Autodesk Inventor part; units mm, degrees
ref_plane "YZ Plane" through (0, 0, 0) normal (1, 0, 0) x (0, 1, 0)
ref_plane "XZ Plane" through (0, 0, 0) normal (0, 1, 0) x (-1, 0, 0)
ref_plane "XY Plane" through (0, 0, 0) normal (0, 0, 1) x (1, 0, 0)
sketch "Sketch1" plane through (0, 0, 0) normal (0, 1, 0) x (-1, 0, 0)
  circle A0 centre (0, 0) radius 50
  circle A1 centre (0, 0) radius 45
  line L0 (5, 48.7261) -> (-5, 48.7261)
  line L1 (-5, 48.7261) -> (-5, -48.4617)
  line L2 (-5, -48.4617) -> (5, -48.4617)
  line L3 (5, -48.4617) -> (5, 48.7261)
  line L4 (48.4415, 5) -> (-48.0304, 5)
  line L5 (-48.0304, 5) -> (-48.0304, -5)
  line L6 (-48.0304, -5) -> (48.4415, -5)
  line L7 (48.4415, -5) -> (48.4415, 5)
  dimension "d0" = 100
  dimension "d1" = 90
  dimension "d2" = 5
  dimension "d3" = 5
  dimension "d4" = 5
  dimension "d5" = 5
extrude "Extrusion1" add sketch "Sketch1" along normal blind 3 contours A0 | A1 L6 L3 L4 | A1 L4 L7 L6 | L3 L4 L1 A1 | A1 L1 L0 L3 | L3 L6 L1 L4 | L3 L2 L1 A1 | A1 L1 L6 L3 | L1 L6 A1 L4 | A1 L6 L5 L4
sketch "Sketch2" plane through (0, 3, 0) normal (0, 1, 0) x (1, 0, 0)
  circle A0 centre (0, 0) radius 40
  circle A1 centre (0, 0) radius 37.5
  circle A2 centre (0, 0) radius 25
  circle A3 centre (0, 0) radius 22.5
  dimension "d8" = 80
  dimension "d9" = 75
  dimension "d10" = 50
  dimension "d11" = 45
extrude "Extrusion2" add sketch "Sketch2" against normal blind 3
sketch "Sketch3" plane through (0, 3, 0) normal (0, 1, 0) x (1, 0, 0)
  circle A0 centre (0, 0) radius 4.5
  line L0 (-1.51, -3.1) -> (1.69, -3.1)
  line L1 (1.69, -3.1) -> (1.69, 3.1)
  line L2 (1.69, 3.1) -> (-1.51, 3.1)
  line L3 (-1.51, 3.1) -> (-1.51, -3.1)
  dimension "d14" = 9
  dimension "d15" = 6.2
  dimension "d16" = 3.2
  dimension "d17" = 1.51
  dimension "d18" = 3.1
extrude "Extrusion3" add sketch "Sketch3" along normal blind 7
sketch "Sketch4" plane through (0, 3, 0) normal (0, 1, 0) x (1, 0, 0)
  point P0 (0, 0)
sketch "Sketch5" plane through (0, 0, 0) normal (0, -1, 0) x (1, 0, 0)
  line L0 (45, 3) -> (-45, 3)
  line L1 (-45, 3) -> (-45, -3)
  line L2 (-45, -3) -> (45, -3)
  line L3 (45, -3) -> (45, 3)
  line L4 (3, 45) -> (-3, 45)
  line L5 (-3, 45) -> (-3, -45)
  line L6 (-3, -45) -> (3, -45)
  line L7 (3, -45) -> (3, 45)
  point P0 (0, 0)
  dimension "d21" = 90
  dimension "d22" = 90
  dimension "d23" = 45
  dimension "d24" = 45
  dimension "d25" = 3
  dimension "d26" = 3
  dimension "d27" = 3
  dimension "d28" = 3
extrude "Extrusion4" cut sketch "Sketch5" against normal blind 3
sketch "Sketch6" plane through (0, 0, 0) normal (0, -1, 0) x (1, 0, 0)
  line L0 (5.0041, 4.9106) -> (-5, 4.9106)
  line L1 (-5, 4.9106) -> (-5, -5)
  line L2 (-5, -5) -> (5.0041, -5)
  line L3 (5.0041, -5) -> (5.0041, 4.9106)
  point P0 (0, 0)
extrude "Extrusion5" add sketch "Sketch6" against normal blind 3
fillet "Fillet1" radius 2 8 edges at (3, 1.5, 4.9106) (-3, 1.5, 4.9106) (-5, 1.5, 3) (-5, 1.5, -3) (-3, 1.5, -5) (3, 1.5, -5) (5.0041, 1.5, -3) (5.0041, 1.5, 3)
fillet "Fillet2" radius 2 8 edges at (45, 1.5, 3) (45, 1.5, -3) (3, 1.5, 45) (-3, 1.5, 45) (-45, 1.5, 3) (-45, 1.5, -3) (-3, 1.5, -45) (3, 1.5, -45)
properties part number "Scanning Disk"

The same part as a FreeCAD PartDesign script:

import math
import FreeCAD as App
import Part
import Sketcher

V = App.Vector
Q = App.Units.Quantity


def edges_at(feature, points):
    """Names of the edges that pass closest to the given points."""
    edges = feature.Shape.Edges
    near = lambda p: min(range(len(edges)), key=lambda i: edges[i].distToShape(Part.Vertex(*p))[0])
    return sorted({f"Edge{near(p) + 1}" for p in points})

doc = App.newDocument("Part")
body = doc.addObject("PartDesign::Body", "Body")

sketch1 = body.newObject("Sketcher::SketchObject", "Sketch")
sketch1.AttachmentSupport = (doc.getObject("XZ_Plane"), [""])
sketch1.MapMode = "FlatFace"
sketch1.addGeometry([
    Part.Circle(V(0, 0, 0), V(0, 0, 1), 50),
    Part.ArcOfCircle(Part.Circle(V(0, 0, 0), V(0, 0, 1), 45), math.radians(96), math.radians(174)),
    Part.LineSegment(V(-45, 5, 0), V(-5, 5, 0)),
    Part.LineSegment(V(-5, 5, 0), V(-5, 45, 0)),
    Part.ArcOfCircle(Part.Circle(V(0, 0, 0), V(0, 0, 1), 45), math.radians(6), math.radians(84)),
    Part.LineSegment(V(5, 45, 0), V(5, 5, 0)),
    Part.LineSegment(V(5, 5, 0), V(45, 5, 0)),
    Part.ArcOfCircle(Part.Circle(V(0, 0, 0), V(0, 0, 1), 45), math.radians(-84), math.radians(-6)),
    Part.LineSegment(V(45, -5, 0), V(5, -5, 0)),
    Part.LineSegment(V(5, -5, 0), V(5, -45, 0)),
    Part.ArcOfCircle(Part.Circle(V(0, 0, 0), V(0, 0, 1), 45), math.radians(-174), math.radians(-96)),
    Part.LineSegment(V(-5, -45, 0), V(-5, -5, 0)),
    Part.LineSegment(V(-5, -5, 0), V(-45, -5, 0)),
], False)
sketch1.addConstraint([
    Sketcher.Constraint("Coincident", 1, 2, 2, 1),
    Sketcher.Constraint("Coincident", 2, 2, 3, 1),
    Sketcher.Constraint("Coincident", 3, 2, 1, 1),
    Sketcher.Constraint("Coincident", 4, 2, 5, 1),
    Sketcher.Constraint("Coincident", 5, 2, 6, 1),
    Sketcher.Constraint("Coincident", 6, 2, 4, 1),
    Sketcher.Constraint("Coincident", 7, 2, 8, 1),
    Sketcher.Constraint("Coincident", 8, 2, 9, 1),
    Sketcher.Constraint("Coincident", 9, 2, 7, 1),
    Sketcher.Constraint("Coincident", 10, 2, 11, 1),
    Sketcher.Constraint("Coincident", 11, 2, 12, 1),
    Sketcher.Constraint("Coincident", 12, 2, 10, 1),
    Sketcher.Constraint("Horizontal", 2),
    Sketcher.Constraint("Vertical", 3),
    Sketcher.Constraint("Vertical", 5),
    Sketcher.Constraint("Horizontal", 6),
    Sketcher.Constraint("Horizontal", 8),
    Sketcher.Constraint("Vertical", 9),
    Sketcher.Constraint("Vertical", 11),
    Sketcher.Constraint("Horizontal", 12),
    Sketcher.Constraint("Coincident", 0, 3, -1, 1),
    Sketcher.Constraint("Coincident", 1, 3, -1, 1),
    Sketcher.Constraint("Coincident", 4, 3, -1, 1),
    Sketcher.Constraint("Coincident", 7, 3, -1, 1),
    Sketcher.Constraint("Coincident", 10, 3, -1, 1),
    Sketcher.Constraint("Equal", 1, 4),
    Sketcher.Constraint("Equal", 4, 7),
    Sketcher.Constraint("Equal", 7, 10),
    Sketcher.Constraint("Symmetric", 2, 2, 8, 2, -1, 1),
    Sketcher.Constraint("Symmetric", 5, 2, 11, 2, -1, 1),
    Sketcher.Constraint("Symmetric", 2, 2, 5, 2, -2),
    Sketcher.Constraint("Equal", 12, 3),
    Sketcher.Constraint("Diameter", 0, Q("100 mm")),
    Sketcher.Constraint("Radius", 1, Q("45 mm")),
    Sketcher.Constraint("DistanceY", -1, 1, 1, 2, Q("5 mm")),
])
pad1 = body.newObject("PartDesign::Pad", "Pad")
pad1.Profile = sketch1
pad1.Length = 3
pad1.Reversed = True

sketch2 = body.newObject("Sketcher::SketchObject", "Sketch001")
sketch2.AttachmentSupport = (doc.getObject("XZ_Plane"), [""])
sketch2.MapMode = "FlatFace"
sketch2.AttachmentOffset = App.Placement(V(0, 0, -3), App.Rotation())
sketch2.addGeometry([
    Part.Circle(V(0, 0, 0), V(0, 0, 1), 40),
    Part.Circle(V(0, 0, 0), V(0, 0, 1), 38),
    Part.Circle(V(0, 0, 0), V(0, 0, 1), 25),
    Part.Circle(V(0, 0, 0), V(0, 0, 1), 22),
], False)
sketch2.addConstraint([
    Sketcher.Constraint("Coincident", 0, 3, -1, 1),
    Sketcher.Constraint("Coincident", 1, 3, -1, 1),
    Sketcher.Constraint("Coincident", 2, 3, -1, 1),
    Sketcher.Constraint("Coincident", 3, 3, -1, 1),
    Sketcher.Constraint("Diameter", 0, Q("80 mm")),
    Sketcher.Constraint("Diameter", 1, Q("75 mm")),
    Sketcher.Constraint("Diameter", 2, Q("50 mm")),
    Sketcher.Constraint("Diameter", 3, Q("45 mm")),
])
pad2 = body.newObject("PartDesign::Pad", "Pad001")
pad2.Profile = sketch2
pad2.Length = 3

sketch3 = body.newObject("Sketcher::SketchObject", "Sketch002")
sketch3.AttachmentSupport = (doc.getObject("XZ_Plane"), [""])
sketch3.MapMode = "FlatFace"
sketch3.AttachmentOffset = App.Placement(V(0, 0, -3), App.Rotation())
sketch3.addGeometry([
    Part.Circle(V(0, 0, 0), V(0, 0, 1), 4.5),
    Part.LineSegment(V(1.7, 3.1, 0), V(-1.5, 3.1, 0)),
    Part.LineSegment(V(-1.5, 3.1, 0), V(-1.5, -3.1, 0)),
    Part.LineSegment(V(-1.5, -3.1, 0), V(1.7, -3.1, 0)),
    Part.LineSegment(V(1.7, -3.1, 0), V(1.7, 3.1, 0)),
], False)
sketch3.addConstraint([
    Sketcher.Constraint("Coincident", 1, 2, 2, 1),
    Sketcher.Constraint("Coincident", 2, 2, 3, 1),
    Sketcher.Constraint("Coincident", 3, 2, 4, 1),
    Sketcher.Constraint("Coincident", 4, 2, 1, 1),
    Sketcher.Constraint("Horizontal", 1),
    Sketcher.Constraint("Vertical", 2),
    Sketcher.Constraint("Horizontal", 3),
    Sketcher.Constraint("Vertical", 4),
    Sketcher.Constraint("Coincident", 0, 3, -1, 1),
    Sketcher.Constraint("Diameter", 0, Q("9 mm")),
    Sketcher.Constraint("DistanceX", 1, 2, 1, 1, Q("3.2 mm")),
    Sketcher.Constraint("DistanceY", 2, 2, 2, 1, Q("6.2 mm")),
    Sketcher.Constraint("DistanceY", -1, 1, 1, 2, Q("3.1 mm")),
    Sketcher.Constraint("DistanceX", 1, 2, -1, 1, Q("1.51 mm")),
])
pad3 = body.newObject("PartDesign::Pad", "Pad002")
pad3.Profile = sketch3
pad3.Length = 7
pad3.Reversed = True

sketch4 = body.newObject("Sketcher::SketchObject", "Sketch003")
sketch4.AttachmentSupport = (doc.getObject("XZ_Plane"), [""])
sketch4.MapMode = "FlatFace"
sketch4.addGeometry([
    Part.LineSegment(V(45, -3, 0), V(45, 3, 0)),
    Part.LineSegment(V(45, 3, 0), V(3, 3, 0)),
    Part.LineSegment(V(3, 3, 0), V(3, 45, 0)),
    Part.LineSegment(V(3, 45, 0), V(-3, 45, 0)),
    Part.LineSegment(V(-3, 45, 0), V(-3, 3, 0)),
    Part.LineSegment(V(-3, 3, 0), V(-45, 3, 0)),
    Part.LineSegment(V(-45, 3, 0), V(-45, -3, 0)),
    Part.LineSegment(V(-45, -3, 0), V(-3, -3, 0)),
    Part.LineSegment(V(-3, -3, 0), V(-3, -45, 0)),
    Part.LineSegment(V(-3, -45, 0), V(3, -45, 0)),
    Part.LineSegment(V(3, -45, 0), V(3, -3, 0)),
    Part.LineSegment(V(3, -3, 0), V(45, -3, 0)),
], False)
sketch4.addConstraint([
    Sketcher.Constraint("Coincident", 0, 2, 1, 1),
    Sketcher.Constraint("Coincident", 1, 2, 2, 1),
    Sketcher.Constraint("Coincident", 2, 2, 3, 1),
    Sketcher.Constraint("Coincident", 3, 2, 4, 1),
    Sketcher.Constraint("Coincident", 4, 2, 5, 1),
    Sketcher.Constraint("Coincident", 5, 2, 6, 1),
    Sketcher.Constraint("Coincident", 6, 2, 7, 1),
    Sketcher.Constraint("Coincident", 7, 2, 8, 1),
    Sketcher.Constraint("Coincident", 8, 2, 9, 1),
    Sketcher.Constraint("Coincident", 9, 2, 10, 1),
    Sketcher.Constraint("Coincident", 10, 2, 11, 1),
    Sketcher.Constraint("Coincident", 11, 2, 0, 1),
    Sketcher.Constraint("Vertical", 0),
    Sketcher.Constraint("Horizontal", 1),
    Sketcher.Constraint("Vertical", 2),
    Sketcher.Constraint("Horizontal", 3),
    Sketcher.Constraint("Vertical", 4),
    Sketcher.Constraint("Horizontal", 5),
    Sketcher.Constraint("Vertical", 6),
    Sketcher.Constraint("Horizontal", 7),
    Sketcher.Constraint("Vertical", 8),
    Sketcher.Constraint("Horizontal", 9),
    Sketcher.Constraint("Vertical", 10),
    Sketcher.Constraint("Horizontal", 11),
    Sketcher.Constraint("Symmetric", 0, 2, 6, 2, -1, 1),
    Sketcher.Constraint("Symmetric", 2, 2, 8, 2, -1, 1),
    Sketcher.Constraint("Symmetric", 4, 2, 10, 2, -1, 1),
    Sketcher.Constraint("Symmetric", 1, 2, 4, 2, -2),
    Sketcher.Constraint("Equal", 9, 0),
    Sketcher.Constraint("Equal", 11, 2),
    Sketcher.Constraint("DistanceX", -1, 1, 0, 2, Q("45 mm")),
    Sketcher.Constraint("DistanceY", -1, 1, 0, 2, Q("3 mm")),
])
pocket1 = body.newObject("PartDesign::Pocket", "Pocket")
pocket1.Profile = sketch4
pocket1.Length = 3

sketch5 = body.newObject("Sketcher::SketchObject", "Sketch004")
sketch5.AttachmentSupport = (doc.getObject("XZ_Plane"), [""])
sketch5.MapMode = "FlatFace"
sketch5.addGeometry([
    Part.LineSegment(V(5, -5, 0), V(5, 5, 0)),
    Part.LineSegment(V(5, 5, 0), V(-5, 5, 0)),
    Part.LineSegment(V(-5, 5, 0), V(-5, -5, 0)),
    Part.LineSegment(V(-5, -5, 0), V(5, -5, 0)),
], False)
sketch5.addConstraint([
    Sketcher.Constraint("Coincident", 0, 2, 1, 1),
    Sketcher.Constraint("Coincident", 1, 2, 2, 1),
    Sketcher.Constraint("Coincident", 2, 2, 3, 1),
    Sketcher.Constraint("Coincident", 3, 2, 0, 1),
    Sketcher.Constraint("Vertical", 0),
    Sketcher.Constraint("Horizontal", 1),
    Sketcher.Constraint("Vertical", 2),
    Sketcher.Constraint("Horizontal", 3),
    Sketcher.Constraint("DistanceX", 1, 2, -1, 1, Q("5 mm")),
    Sketcher.Constraint("DistanceY", 2, 2, -1, 1, Q("5 mm")),
    Sketcher.Constraint("DistanceX", 1, 2, 1, 1, Q("10.004 mm")),
    Sketcher.Constraint("DistanceY", 0, 1, 0, 2, Q("9.9106 mm")),
])
pad4 = body.newObject("PartDesign::Pad", "Pad003")
pad4.Profile = sketch5
pad4.Length = 3
pad4.Reversed = True
doc.recompute()

fillet = body.newObject("PartDesign::Fillet", "Fillet")
fillet.Base = (pad4, edges_at(pad4, [
    (3, 1.5, 4.911),
    (-3, 1.5, 4.911),
    (-5, 1.5, 3),
    (-5, 1.5, -3),
    (-3, 1.5, -5),
    (3, 1.5, -5),
    (5.004, 1.5, -3),
    (5.004, 1.5, 3),
]))
fillet.Radius = 2
doc.recompute()

fillet2 = body.newObject("PartDesign::Fillet", "Fillet001")
fillet2.Base = (fillet, edges_at(fillet, [
    (45, 1.5, 3),
    (45, 1.5, -3),
    (3, 1.5, 45),
    (-3, 1.5, 45),
    (-45, 1.5, 3),
    (-45, 1.5, -3),
    (-3, 1.5, -45),
    (3, 1.5, -45),
]))
fillet2.Radius = 2

doc.recompute()
